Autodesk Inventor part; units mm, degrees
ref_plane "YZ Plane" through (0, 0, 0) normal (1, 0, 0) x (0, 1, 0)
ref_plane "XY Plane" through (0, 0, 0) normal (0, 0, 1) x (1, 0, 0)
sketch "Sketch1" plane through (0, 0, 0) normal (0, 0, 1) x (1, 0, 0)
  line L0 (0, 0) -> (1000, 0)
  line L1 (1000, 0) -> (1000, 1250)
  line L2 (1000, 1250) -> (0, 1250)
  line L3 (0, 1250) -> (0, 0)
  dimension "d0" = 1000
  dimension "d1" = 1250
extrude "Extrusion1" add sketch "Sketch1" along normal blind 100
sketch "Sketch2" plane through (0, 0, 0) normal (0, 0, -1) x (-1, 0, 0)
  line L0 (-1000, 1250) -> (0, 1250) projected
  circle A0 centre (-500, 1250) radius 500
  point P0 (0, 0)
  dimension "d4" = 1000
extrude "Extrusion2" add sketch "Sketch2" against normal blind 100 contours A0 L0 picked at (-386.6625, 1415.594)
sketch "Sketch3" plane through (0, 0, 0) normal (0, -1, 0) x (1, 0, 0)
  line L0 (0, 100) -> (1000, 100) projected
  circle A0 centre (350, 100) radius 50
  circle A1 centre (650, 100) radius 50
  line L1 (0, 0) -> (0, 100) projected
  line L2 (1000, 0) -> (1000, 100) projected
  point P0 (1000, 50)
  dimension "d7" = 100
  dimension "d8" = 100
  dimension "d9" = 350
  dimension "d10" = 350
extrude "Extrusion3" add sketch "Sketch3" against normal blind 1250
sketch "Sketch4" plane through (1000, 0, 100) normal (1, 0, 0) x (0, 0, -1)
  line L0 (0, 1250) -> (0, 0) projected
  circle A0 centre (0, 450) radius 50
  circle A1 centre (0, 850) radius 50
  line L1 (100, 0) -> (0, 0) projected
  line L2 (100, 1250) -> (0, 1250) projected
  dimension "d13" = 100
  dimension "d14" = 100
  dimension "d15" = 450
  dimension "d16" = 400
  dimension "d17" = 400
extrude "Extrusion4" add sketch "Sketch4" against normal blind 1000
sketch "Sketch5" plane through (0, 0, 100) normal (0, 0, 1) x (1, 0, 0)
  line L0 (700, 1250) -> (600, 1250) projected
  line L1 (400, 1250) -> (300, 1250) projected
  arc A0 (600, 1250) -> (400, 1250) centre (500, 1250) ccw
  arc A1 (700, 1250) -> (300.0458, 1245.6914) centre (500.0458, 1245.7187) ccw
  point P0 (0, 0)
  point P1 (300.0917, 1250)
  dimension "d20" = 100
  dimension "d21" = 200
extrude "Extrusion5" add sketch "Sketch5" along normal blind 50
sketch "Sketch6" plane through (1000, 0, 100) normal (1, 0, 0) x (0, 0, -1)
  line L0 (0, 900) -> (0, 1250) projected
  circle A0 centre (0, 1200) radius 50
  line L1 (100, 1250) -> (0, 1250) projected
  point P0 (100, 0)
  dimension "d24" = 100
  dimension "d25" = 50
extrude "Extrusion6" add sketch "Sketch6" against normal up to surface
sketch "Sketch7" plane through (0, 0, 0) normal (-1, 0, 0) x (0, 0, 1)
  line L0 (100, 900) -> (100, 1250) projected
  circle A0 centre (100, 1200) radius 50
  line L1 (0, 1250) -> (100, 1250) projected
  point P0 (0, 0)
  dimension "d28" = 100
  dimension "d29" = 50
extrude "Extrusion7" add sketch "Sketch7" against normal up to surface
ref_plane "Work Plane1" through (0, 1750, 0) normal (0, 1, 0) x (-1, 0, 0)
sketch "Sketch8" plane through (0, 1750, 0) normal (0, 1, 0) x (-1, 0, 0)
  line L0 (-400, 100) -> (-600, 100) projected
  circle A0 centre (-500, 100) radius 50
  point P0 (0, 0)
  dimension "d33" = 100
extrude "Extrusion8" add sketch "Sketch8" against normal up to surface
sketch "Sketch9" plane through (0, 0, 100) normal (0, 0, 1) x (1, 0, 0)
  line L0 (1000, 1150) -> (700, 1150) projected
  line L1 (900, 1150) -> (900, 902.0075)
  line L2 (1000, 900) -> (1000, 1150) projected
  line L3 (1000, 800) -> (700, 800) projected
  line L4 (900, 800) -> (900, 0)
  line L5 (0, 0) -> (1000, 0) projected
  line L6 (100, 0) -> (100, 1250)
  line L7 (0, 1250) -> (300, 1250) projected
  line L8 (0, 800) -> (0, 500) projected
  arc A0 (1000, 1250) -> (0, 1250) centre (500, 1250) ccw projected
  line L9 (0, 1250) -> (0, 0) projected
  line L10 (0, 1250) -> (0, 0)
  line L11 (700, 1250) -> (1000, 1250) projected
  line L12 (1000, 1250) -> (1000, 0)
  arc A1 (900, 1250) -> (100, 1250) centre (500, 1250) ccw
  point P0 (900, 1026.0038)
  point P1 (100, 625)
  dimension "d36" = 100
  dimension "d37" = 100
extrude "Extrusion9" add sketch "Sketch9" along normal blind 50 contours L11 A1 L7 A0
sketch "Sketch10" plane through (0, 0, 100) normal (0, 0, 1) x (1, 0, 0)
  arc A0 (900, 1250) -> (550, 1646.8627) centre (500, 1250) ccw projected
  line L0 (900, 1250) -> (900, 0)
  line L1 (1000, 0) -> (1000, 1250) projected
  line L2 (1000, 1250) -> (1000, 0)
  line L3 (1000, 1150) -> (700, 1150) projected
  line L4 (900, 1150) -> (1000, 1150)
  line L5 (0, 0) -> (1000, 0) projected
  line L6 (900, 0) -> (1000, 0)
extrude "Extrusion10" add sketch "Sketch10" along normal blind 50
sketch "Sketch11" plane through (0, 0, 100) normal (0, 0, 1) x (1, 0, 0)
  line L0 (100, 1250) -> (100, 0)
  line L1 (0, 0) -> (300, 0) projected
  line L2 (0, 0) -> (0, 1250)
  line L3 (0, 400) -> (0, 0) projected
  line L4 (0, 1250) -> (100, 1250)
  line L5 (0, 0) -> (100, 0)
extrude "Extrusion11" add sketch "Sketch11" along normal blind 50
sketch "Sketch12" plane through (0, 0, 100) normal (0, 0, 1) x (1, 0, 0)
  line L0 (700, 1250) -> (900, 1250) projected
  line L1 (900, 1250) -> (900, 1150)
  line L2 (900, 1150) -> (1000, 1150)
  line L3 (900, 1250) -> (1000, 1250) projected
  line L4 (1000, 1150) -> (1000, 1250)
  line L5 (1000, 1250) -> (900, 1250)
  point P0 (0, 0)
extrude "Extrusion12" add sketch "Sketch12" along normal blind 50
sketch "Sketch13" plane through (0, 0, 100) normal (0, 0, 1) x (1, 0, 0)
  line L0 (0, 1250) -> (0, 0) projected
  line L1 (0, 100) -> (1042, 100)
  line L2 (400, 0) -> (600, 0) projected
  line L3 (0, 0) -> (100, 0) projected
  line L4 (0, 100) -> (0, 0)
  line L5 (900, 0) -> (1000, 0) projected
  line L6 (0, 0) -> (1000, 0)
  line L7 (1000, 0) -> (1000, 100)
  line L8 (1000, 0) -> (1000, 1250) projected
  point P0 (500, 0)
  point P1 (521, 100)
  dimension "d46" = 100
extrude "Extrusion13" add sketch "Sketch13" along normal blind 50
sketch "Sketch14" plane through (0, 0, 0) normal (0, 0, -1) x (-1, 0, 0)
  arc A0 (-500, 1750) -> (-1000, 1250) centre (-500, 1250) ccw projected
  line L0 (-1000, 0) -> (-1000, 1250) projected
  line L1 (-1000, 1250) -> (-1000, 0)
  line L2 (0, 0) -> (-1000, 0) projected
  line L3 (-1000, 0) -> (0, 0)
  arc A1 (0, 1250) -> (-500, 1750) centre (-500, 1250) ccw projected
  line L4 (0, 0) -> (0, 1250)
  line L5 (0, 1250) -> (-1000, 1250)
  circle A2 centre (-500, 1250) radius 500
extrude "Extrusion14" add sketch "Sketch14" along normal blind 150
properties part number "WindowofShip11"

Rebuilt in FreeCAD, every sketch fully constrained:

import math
import FreeCAD as App
import Part
import Sketcher

V = App.Vector
Q = App.Units.Quantity

doc = App.newDocument("Part")
body = doc.addObject("PartDesign::Body", "Body")

sketch1 = body.newObject("Sketcher::SketchObject", "Sketch")
sketch1.AttachmentSupport = (doc.getObject("XY_Plane"), [""])
sketch1.MapMode = "FlatFace"
sketch1.addGeometry(Part.LineSegment(V(0, 1250, 0), V(0, 0, 0)), False)
sketch1.addGeometry(Part.LineSegment(V(0, 0, 0), V(1000, 0, 0)), False)
sketch1.addGeometry(Part.LineSegment(V(1000, 0, 0), V(1000, 1250, 0)), False)
sketch1.addGeometry(Part.LineSegment(V(1000, 1250, 0), V(0, 1250, 0)), False)
sketch1.addConstraint(Sketcher.Constraint("Coincident", 0, 2, 1, 1))
sketch1.addConstraint(Sketcher.Constraint("Coincident", 1, 2, 2, 1))
sketch1.addConstraint(Sketcher.Constraint("Coincident", 2, 2, 3, 1))
sketch1.addConstraint(Sketcher.Constraint("Coincident", 3, 2, 0, 1))
sketch1.addConstraint(Sketcher.Constraint("Vertical", 0))
sketch1.addConstraint(Sketcher.Constraint("Horizontal", 1))
sketch1.addConstraint(Sketcher.Constraint("Vertical", 2))
sketch1.addConstraint(Sketcher.Constraint("Horizontal", 3))
sketch1.addConstraint(Sketcher.Constraint("Coincident", 0, 2, -1, 1))
sketch1.addConstraint(Sketcher.Constraint("DistanceX", 1, 1, 1, 2, Q("1000 mm")))
sketch1.addConstraint(Sketcher.Constraint("DistanceY", 0, 2, 0, 1, Q("1250 mm")))
pad1 = body.newObject("PartDesign::Pad", "Pad")
pad1.Profile = sketch1
pad1.Length = 100

sketch2 = body.newObject("Sketcher::SketchObject", "Sketch001")
sketch2.AttachmentSupport = (doc.getObject("XY_Plane"), [""])
sketch2.MapMode = "FlatFace"
sketch2.addGeometry(Part.ArcOfCircle(Part.Circle(V(500, 1250, 0), V(0, 0, 1), 500), math.radians(0), math.radians(180)), False)
sketch2.addGeometry(Part.LineSegment(V(1000, 1250, 0), V(0, 1250, 0)), False)
sketch2.addConstraint(Sketcher.Constraint("Coincident", 0, 1, 1, 1))
sketch2.addConstraint(Sketcher.Constraint("Coincident", 1, 2, 0, 2))
sketch2.addConstraint(Sketcher.Constraint("Horizontal", 1))
sketch2.addConstraint(Sketcher.Constraint("PointOnObject", 1, 2, -2))
sketch2.addConstraint(Sketcher.Constraint("Radius", 0, Q("500 mm")))
sketch2.addConstraint(Sketcher.Constraint("DistanceY", -1, 1, 0, 3, Q("1250 mm")))
sketch2.addConstraint(Sketcher.Constraint("DistanceY", -1, 1, 1, 2, Q("1250 mm")))
pad2 = body.newObject("PartDesign::Pad", "Pad001")
pad2.Profile = sketch2
pad2.Length = 100

sketch3 = body.newObject("Sketcher::SketchObject", "Sketch002")
sketch3.AttachmentSupport = (doc.getObject("XZ_Plane"), [""])
sketch3.MapMode = "FlatFace"
sketch3.addGeometry(Part.Circle(V(350, 100, 0), V(0, 0, 1), 50), False)
sketch3.addGeometry(Part.Circle(V(650, 100, 0), V(0, 0, 1), 50), False)
sketch3.addConstraint(Sketcher.Constraint("Equal", 0, 1))
sketch3.addConstraint(Sketcher.Constraint("Horizontal", 0, 3, 1, 3))
sketch3.addConstraint(Sketcher.Constraint("Diameter", 0, Q("100 mm")))
sketch3.addConstraint(Sketcher.Constraint("DistanceX", -1, 1, 0, 3, Q("350 mm")))
sketch3.addConstraint(Sketcher.Constraint("DistanceY", -1, 1, 0, 3, Q("100 mm")))
sketch3.addConstraint(Sketcher.Constraint("DistanceX", -1, 1, 1, 3, Q("650 mm")))
pad3 = body.newObject("PartDesign::Pad", "Pad002")
pad3.Profile = sketch3
pad3.Length = 1250
pad3.Reversed = True

sketch4 = body.newObject("Sketcher::SketchObject", "Sketch003")
sketch4.AttachmentSupport = (doc.getObject("YZ_Plane"), [""])
sketch4.MapMode = "FlatFace"
sketch4.AttachmentOffset = App.Placement(V(0, 0, 1000), App.Rotation())
sketch4.addGeometry(Part.Circle(V(850, 100, 0), V(0, 0, 1), 50), False)
sketch4.addGeometry(Part.Circle(V(450, 100, 0), V(0, 0, 1), 50), False)
sketch4.addConstraint(Sketcher.Constraint("Equal", 0, 1))
sketch4.addConstraint(Sketcher.Constraint("Horizontal", 0, 3, 1, 3))
sketch4.addConstraint(Sketcher.Constraint("Diameter", 0, Q("100 mm")))
sketch4.addConstraint(Sketcher.Constraint("DistanceY", -1, 1, 0, 3, Q("100 mm")))
sketch4.addConstraint(Sketcher.Constraint("DistanceX", -1, 1, 1, 3, Q("450 mm")))
sketch4.addConstraint(Sketcher.Constraint("DistanceX", 1, 3, 0, 3, Q("400 mm")))
pad4 = body.newObject("PartDesign::Pad", "Pad003")
pad4.Profile = sketch4
pad4.Length = 1000
pad4.Reversed = True

sketch5 = body.newObject("Sketcher::SketchObject", "Sketch004")
sketch5.AttachmentSupport = (doc.getObject("XY_Plane"), [""])
sketch5.MapMode = "FlatFace"
sketch5.AttachmentOffset = App.Placement(V(0, 0, 100), App.Rotation())
sketch5.addGeometry(Part.LineSegment(V(600, 1250, 0), V(700, 1250, 0)), False)
sketch5.addGeometry(Part.ArcOfCircle(Part.Circle(V(500, 1246, 0), V(0, 0, 1), 200), math.radians(1), math.radians(179)), False)
sketch5.addGeometry(Part.LineSegment(V(300, 1250, 0), V(400, 1250, 0)), False)
sketch5.addGeometry(Part.ArcOfCircle(Part.Circle(V(500, 1250, 0), V(0, 0, 1), 100), math.radians(0), math.radians(180)), False)
sketch5.addConstraint(Sketcher.Constraint("Coincident", 0, 2, 1, 1))
sketch5.addConstraint(Sketcher.Constraint("Coincident", 1, 2, 2, 1))
sketch5.addConstraint(Sketcher.Constraint("Coincident", 2, 2, 3, 2))
sketch5.addConstraint(Sketcher.Constraint("Coincident", 3, 1, 0, 1))
sketch5.addConstraint(Sketcher.Constraint("Horizontal", 0))
sketch5.addConstraint(Sketcher.Constraint("Horizontal", 2))
sketch5.addConstraint(Sketcher.Constraint("Horizontal", 3, 3, 0, 2))
sketch5.addConstraint(Sketcher.Constraint("Horizontal", 0, 2, 1, 2))
sketch5.addConstraint(Sketcher.Constraint("Radius", 1, Q("200 mm")))
sketch5.addConstraint(Sketcher.Constraint("Radius", 3, Q("100 mm")))
sketch5.addConstraint(Sketcher.Constraint("DistanceX", 0, 1, 0, 2, Q("100 mm")))
sketch5.addConstraint(Sketcher.Constraint("DistanceX", -1, 1, 3, 3, Q("500 mm")))
sketch5.addConstraint(Sketcher.Constraint("DistanceY", -1, 1, 3, 3, Q("1250 mm")))
sketch5.addConstraint(Sketcher.Constraint("DistanceX", 2, 1, 2, 2, Q("99.9084 mm")))
pad5 = body.newObject("PartDesign::Pad", "Pad004")
pad5.Profile = sketch5
pad5.Length = 50

sketch6 = body.newObject("Sketcher::SketchObject", "Sketch005")
sketch6.AttachmentSupport = (doc.getObject("YZ_Plane"), [""])
sketch6.MapMode = "FlatFace"
sketch6.AttachmentOffset = App.Placement(V(0, 0, 1000), App.Rotation())
sketch6.addGeometry(Part.Circle(V(1200, 100, 0), V(0, 0, 1), 50), False)
sketch6.addConstraint(Sketcher.Constraint("Diameter", 0, Q("100 mm")))
sketch6.addConstraint(Sketcher.Constraint("DistanceY", -1, 1, 0, 3, Q("100 mm")))
sketch6.addConstraint(Sketcher.Constraint("DistanceX", -1, 1, 0, 3, Q("1200 mm")))
pad6 = body.newObject("PartDesign::Pad", "Pad005")
pad6.Profile = sketch6
pad6.Type = "UpToFirst"
pad6.Reversed = True

sketch7 = body.newObject("Sketcher::SketchObject", "Sketch006")
sketch7.AttachmentSupport = (doc.getObject("YZ_Plane"), [""])
sketch7.MapMode = "FlatFace"
sketch7.addGeometry(Part.Circle(V(1200, 100, 0), V(0, 0, 1), 50), False)
sketch7.addConstraint(Sketcher.Constraint("Diameter", 0, Q("100 mm")))
sketch7.addConstraint(Sketcher.Constraint("DistanceY", -1, 1, 0, 3, Q("100 mm")))
sketch7.addConstraint(Sketcher.Constraint("DistanceX", -1, 1, 0, 3, Q("1200 mm")))
pad7 = body.newObject("PartDesign::Pad", "Pad006")
pad7.Profile = sketch7
pad7.Type = "UpToFirst"

sketch8 = body.newObject("Sketcher::SketchObject", "Sketch007")
sketch8.AttachmentSupport = (doc.getObject("XZ_Plane"), [""])
sketch8.MapMode = "FlatFace"
sketch8.AttachmentOffset = App.Placement(V(0, 0, -1750), App.Rotation())
sketch8.addGeometry(Part.Circle(V(500, 100, 0), V(0, 0, 1), 50), False)
sketch8.addConstraint(Sketcher.Constraint("Diameter", 0, Q("100 mm")))
sketch8.addConstraint(Sketcher.Constraint("DistanceY", -1, 1, 0, 3, Q("100 mm")))
sketch8.addConstraint(Sketcher.Constraint("DistanceX", -1, 1, 0, 3, Q("500 mm")))
pad8 = body.newObject("PartDesign::Pad", "Pad007")
pad8.Profile = sketch8
pad8.Type = "UpToFirst"

sketch9 = body.newObject("Sketcher::SketchObject", "Sketch008")
sketch9.AttachmentSupport = (doc.getObject("XY_Plane"), [""])
sketch9.MapMode = "FlatFace"
sketch9.AttachmentOffset = App.Placement(V(0, 0, 100), App.Rotation())
sketch9.addGeometry(Part.LineSegment(V(900, 1250, 0), V(1000, 1250, 0)), False)
sketch9.addGeometry(Part.ArcOfCircle(Part.Circle(V(500, 1250, 0), V(0, 0, 1), 500), math.radians(0), math.radians(180)), False)
sketch9.addGeometry(Part.LineSegment(V(0, 1250, 0), V(100, 1250, 0)), False)
sketch9.addGeometry(Part.ArcOfCircle(Part.Circle(V(500, 1250, 0), V(0, 0, 1), 400), math.radians(0), math.radians(180)), False)
sketch9.addConstraint(Sketcher.Constraint("Coincident", 0, 2, 1, 1))
sketch9.addConstraint(Sketcher.Constraint("Coincident", 1, 2, 2, 1))
sketch9.addConstraint(Sketcher.Constraint("Coincident", 2, 2, 3, 2))
sketch9.addConstraint(Sketcher.Constraint("Coincident", 3, 1, 0, 1))
sketch9.addConstraint(Sketcher.Constraint("Horizontal", 0))
sketch9.addConstraint(Sketcher.Constraint("Horizontal", 2))
sketch9.addConstraint(Sketcher.Constraint("Coincident", 3, 3, 1, 3))
sketch9.addConstraint(Sketcher.Constraint("PointOnObject", 1, 2, -2))
sketch9.addConstraint(Sketcher.Constraint("Horizontal", 3, 3, 0, 2))
sketch9.addConstraint(Sketcher.Constraint("Horizontal", 2, 2, 3, 1))
sketch9.addConstraint(Sketcher.Constraint("DistanceX", 0, 1, 0, 2, Q("100 mm")))
sketch9.addConstraint(Sketcher.Constraint("Radius", 1, Q("500 mm")))
sketch9.addConstraint(Sketcher.Constraint("DistanceY", -1, 1, 1, 3, Q("1250 mm")))
pad9 = body.newObject("PartDesign::Pad", "Pad008")
pad9.Profile = sketch9
pad9.Length = 50

sketch10 = body.newObject("Sketcher::SketchObject", "Sketch009")
sketch10.AttachmentSupport = (doc.getObject("XY_Plane"), [""])
sketch10.MapMode = "FlatFace"
sketch10.AttachmentOffset = App.Placement(V(0, 0, 100), App.Rotation())
sketch10.addGeometry(Part.LineSegment(V(1000, 1150, 0), V(900, 1150, 0)), False)
sketch10.addGeometry(Part.LineSegment(V(900, 1150, 0), V(900, 0, 0)), False)
sketch10.addGeometry(Part.LineSegment(V(900, 0, 0), V(1000, 0, 0)), False)
sketch10.addGeometry(Part.LineSegment(V(1000, 0, 0), V(1000, 1150, 0)), False)
sketch10.addConstraint(Sketcher.Constraint("Coincident", 0, 2, 1, 1))
sketch10.addConstraint(Sketcher.Constraint("Coincident", 1, 2, 2, 1))
sketch10.addConstraint(Sketcher.Constraint("Coincident", 2, 2, 3, 1))
sketch10.addConstraint(Sketcher.Constraint("Coincident", 3, 2, 0, 1))
sketch10.addConstraint(Sketcher.Constraint("Horizontal", 0))
sketch10.addConstraint(Sketcher.Constraint("Vertical", 1))
sketch10.addConstraint(Sketcher.Constraint("Horizontal", 2))
sketch10.addConstraint(Sketcher.Constraint("Vertical", 3))
sketch10.addConstraint(Sketcher.Constraint("PointOnObject", 1, 2, -1))
sketch10.addConstraint(Sketcher.Constraint("DistanceX", 0, 2, 0, 1, Q("100 mm")))
sketch10.addConstraint(Sketcher.Constraint("DistanceY", 1, 2, 1, 1, Q("1150 mm")))
sketch10.addConstraint(Sketcher.Constraint("DistanceX", -1, 1, 0, 2, Q("900 mm")))
pad10 = body.newObject("PartDesign::Pad", "Pad009")
pad10.Profile = sketch10
pad10.Length = 50

sketch11 = body.newObject("Sketcher::SketchObject", "Sketch010")
sketch11.AttachmentSupport = (doc.getObject("XY_Plane"), [""])
sketch11.MapMode = "FlatFace"
sketch11.AttachmentOffset = App.Placement(V(0, 0, 100), App.Rotation())
sketch11.addGeometry(Part.LineSegment(V(100, 0, 0), V(100, 1250, 0)), False)
sketch11.addGeometry(Part.LineSegment(V(100, 1250, 0), V(0, 1250, 0)), False)
sketch11.addGeometry(Part.LineSegment(V(0, 1250, 0), V(0, 0, 0)), False)
sketch11.addGeometry(Part.LineSegment(V(0, 0, 0), V(100, 0, 0)), False)
sketch11.addConstraint(Sketcher.Constraint("Coincident", 0, 2, 1, 1))
sketch11.addConstraint(Sketcher.Constraint("Coincident", 1, 2, 2, 1))
sketch11.addConstraint(Sketcher.Constraint("Coincident", 2, 2, 3, 1))
sketch11.addConstraint(Sketcher.Constraint("Coincident", 3, 2, 0, 1))
sketch11.addConstraint(Sketcher.Constraint("Vertical", 0))
sketch11.addConstraint(Sketcher.Constraint("Horizontal", 1))
sketch11.addConstraint(Sketcher.Constraint("Vertical", 2))
sketch11.addConstraint(Sketcher.Constraint("Horizontal", 3))
sketch11.addConstraint(Sketcher.Constraint("Coincident", 2, 2, -1, 1))
sketch11.addConstraint(Sketcher.Constraint("DistanceX", 1, 2, 1, 1, Q("100 mm")))
sketch11.addConstraint(Sketcher.Constraint("DistanceY", 0, 1, 0, 2, Q("1250 mm")))
pad11 = body.newObject("PartDesign::Pad", "Pad010")
pad11.Profile = sketch11
pad11.Length = 50

sketch12 = body.newObject("Sketcher::SketchObject", "Sketch011")
sketch12.AttachmentSupport = (doc.getObject("XY_Plane"), [""])
sketch12.MapMode = "FlatFace"
sketch12.AttachmentOffset = App.Placement(V(0, 0, 100), App.Rotation())
sketch12.addGeometry(Part.LineSegment(V(1000, 1250, 0), V(900, 1250, 0)), False)
sketch12.addGeometry(Part.LineSegment(V(900, 1250, 0), V(900, 1150, 0)), False)
sketch12.addGeometry(Part.LineSegment(V(900, 1150, 0), V(1000, 1150, 0)), False)
sketch12.addGeometry(Part.LineSegment(V(1000, 1150, 0), V(1000, 1250, 0)), False)
sketch12.addConstraint(Sketcher.Constraint("Coincident", 0, 2, 1, 1))
sketch12.addConstraint(Sketcher.Constraint("Coincident", 1, 2, 2, 1))
sketch12.addConstraint(Sketcher.Constraint("Coincident", 2, 2, 3, 1))
sketch12.addConstraint(Sketcher.Constraint("Coincident", 3, 2, 0, 1))
sketch12.addConstraint(Sketcher.Constraint("Horizontal", 0))
sketch12.addConstraint(Sketcher.Constraint("Vertical", 1))
sketch12.addConstraint(Sketcher.Constraint("Horizontal", 2))
sketch12.addConstraint(Sketcher.Constraint("Vertical", 3))
sketch12.addConstraint(Sketcher.Constraint("Equal", 2, 1))
sketch12.addConstraint(Sketcher.Constraint("DistanceX", 0, 2, 0, 1, Q("100 mm")))
sketch12.addConstraint(Sketcher.Constraint("DistanceX", -1, 1, 0, 2, Q("900 mm")))
sketch12.addConstraint(Sketcher.Constraint("DistanceY", -1, 1, 0, 2, Q("1250 mm")))
pad12 = body.newObject("PartDesign::Pad", "Pad011")
pad12.Profile = sketch12
pad12.Length = 50

sketch13 = body.newObject("Sketcher::SketchObject", "Sketch012")
sketch13.AttachmentSupport = (doc.getObject("XY_Plane"), [""])
sketch13.MapMode = "FlatFace"
sketch13.AttachmentOffset = App.Placement(V(0, 0, 100), App.Rotation())
sketch13.addGeometry(Part.LineSegment(V(1000, 100, 0), V(0, 100, 0)), False)
sketch13.addGeometry(Part.LineSegment(V(0, 100, 0), V(0, 0, 0)), False)
sketch13.addGeometry(Part.LineSegment(V(0, 0, 0), V(1000, 0, 0)), False)
sketch13.addGeometry(Part.LineSegment(V(1000, 0, 0), V(1000, 100, 0)), False)
sketch13.addConstraint(Sketcher.Constraint("Coincident", 0, 2, 1, 1))
sketch13.addConstraint(Sketcher.Constraint("Coincident", 1, 2, 2, 1))
sketch13.addConstraint(Sketcher.Constraint("Coincident", 2, 2, 3, 1))
sketch13.addConstraint(Sketcher.Constraint("Coincident", 3, 2, 0, 1))
sketch13.addConstraint(Sketcher.Constraint("Horizontal", 0))
sketch13.addConstraint(Sketcher.Constraint("Vertical", 1))
sketch13.addConstraint(Sketcher.Constraint("Horizontal", 2))
sketch13.addConstraint(Sketcher.Constraint("Vertical", 3))
sketch13.addConstraint(Sketcher.Constraint("Coincident", 1, 2, -1, 1))
sketch13.addConstraint(Sketcher.Constraint("DistanceY", 1, 2, 1, 1, Q("100 mm")))
sketch13.addConstraint(Sketcher.Constraint("DistanceX", 0, 2, 0, 1, Q("1000 mm")))
pad13 = body.newObject("PartDesign::Pad", "Pad012")
pad13.Profile = sketch13
pad13.Length = 50

sketch14 = body.newObject("Sketcher::SketchObject", "Sketch013")
sketch14.AttachmentSupport = (doc.getObject("XY_Plane"), [""])
sketch14.MapMode = "FlatFace"
sketch14.addGeometry(Part.ArcOfCircle(Part.Circle(V(500, 1250, 0), V(0, 0, 1), 500), math.radians(0), math.radians(180)), False)
sketch14.addGeometry(Part.LineSegment(V(1000, 1250, 0), V(1000, 0, 0)), False)
sketch14.addGeometry(Part.LineSegment(V(1000, 0, 0), V(0, 0, 0)), False)
sketch14.addGeometry(Part.LineSegment(V(0, 0, 0), V(0, 1250, 0)), False)
sketch14.addConstraint(Sketcher.Constraint("Tangent", 0, 1, 1, 1))
sketch14.addConstraint(Sketcher.Constraint("Coincident", 1, 2, 2, 1))
sketch14.addConstraint(Sketcher.Constraint("Coincident", 2, 2, 3, 1))
sketch14.addConstraint(Sketcher.Constraint("Tangent", 3, 2, 0, 2))
sketch14.addConstraint(Sketcher.Constraint("Vertical", 1))
sketch14.addConstraint(Sketcher.Constraint("Horizontal", 2))
sketch14.addConstraint(Sketcher.Constraint("Vertical", 3))
sketch14.addConstraint(Sketcher.Constraint("Coincident", 2, 2, -1, 1))
sketch14.addConstraint(Sketcher.Constraint("Radius", 0, Q("500 mm")))
sketch14.addConstraint(Sketcher.Constraint("DistanceY", 1, 2, 1, 1, Q("1250 mm")))
pad14 = body.newObject("PartDesign::Pad", "Pad013")
pad14.Profile = sketch14
pad14.Length = 150
pad14.Reversed = True

doc.recompute()
